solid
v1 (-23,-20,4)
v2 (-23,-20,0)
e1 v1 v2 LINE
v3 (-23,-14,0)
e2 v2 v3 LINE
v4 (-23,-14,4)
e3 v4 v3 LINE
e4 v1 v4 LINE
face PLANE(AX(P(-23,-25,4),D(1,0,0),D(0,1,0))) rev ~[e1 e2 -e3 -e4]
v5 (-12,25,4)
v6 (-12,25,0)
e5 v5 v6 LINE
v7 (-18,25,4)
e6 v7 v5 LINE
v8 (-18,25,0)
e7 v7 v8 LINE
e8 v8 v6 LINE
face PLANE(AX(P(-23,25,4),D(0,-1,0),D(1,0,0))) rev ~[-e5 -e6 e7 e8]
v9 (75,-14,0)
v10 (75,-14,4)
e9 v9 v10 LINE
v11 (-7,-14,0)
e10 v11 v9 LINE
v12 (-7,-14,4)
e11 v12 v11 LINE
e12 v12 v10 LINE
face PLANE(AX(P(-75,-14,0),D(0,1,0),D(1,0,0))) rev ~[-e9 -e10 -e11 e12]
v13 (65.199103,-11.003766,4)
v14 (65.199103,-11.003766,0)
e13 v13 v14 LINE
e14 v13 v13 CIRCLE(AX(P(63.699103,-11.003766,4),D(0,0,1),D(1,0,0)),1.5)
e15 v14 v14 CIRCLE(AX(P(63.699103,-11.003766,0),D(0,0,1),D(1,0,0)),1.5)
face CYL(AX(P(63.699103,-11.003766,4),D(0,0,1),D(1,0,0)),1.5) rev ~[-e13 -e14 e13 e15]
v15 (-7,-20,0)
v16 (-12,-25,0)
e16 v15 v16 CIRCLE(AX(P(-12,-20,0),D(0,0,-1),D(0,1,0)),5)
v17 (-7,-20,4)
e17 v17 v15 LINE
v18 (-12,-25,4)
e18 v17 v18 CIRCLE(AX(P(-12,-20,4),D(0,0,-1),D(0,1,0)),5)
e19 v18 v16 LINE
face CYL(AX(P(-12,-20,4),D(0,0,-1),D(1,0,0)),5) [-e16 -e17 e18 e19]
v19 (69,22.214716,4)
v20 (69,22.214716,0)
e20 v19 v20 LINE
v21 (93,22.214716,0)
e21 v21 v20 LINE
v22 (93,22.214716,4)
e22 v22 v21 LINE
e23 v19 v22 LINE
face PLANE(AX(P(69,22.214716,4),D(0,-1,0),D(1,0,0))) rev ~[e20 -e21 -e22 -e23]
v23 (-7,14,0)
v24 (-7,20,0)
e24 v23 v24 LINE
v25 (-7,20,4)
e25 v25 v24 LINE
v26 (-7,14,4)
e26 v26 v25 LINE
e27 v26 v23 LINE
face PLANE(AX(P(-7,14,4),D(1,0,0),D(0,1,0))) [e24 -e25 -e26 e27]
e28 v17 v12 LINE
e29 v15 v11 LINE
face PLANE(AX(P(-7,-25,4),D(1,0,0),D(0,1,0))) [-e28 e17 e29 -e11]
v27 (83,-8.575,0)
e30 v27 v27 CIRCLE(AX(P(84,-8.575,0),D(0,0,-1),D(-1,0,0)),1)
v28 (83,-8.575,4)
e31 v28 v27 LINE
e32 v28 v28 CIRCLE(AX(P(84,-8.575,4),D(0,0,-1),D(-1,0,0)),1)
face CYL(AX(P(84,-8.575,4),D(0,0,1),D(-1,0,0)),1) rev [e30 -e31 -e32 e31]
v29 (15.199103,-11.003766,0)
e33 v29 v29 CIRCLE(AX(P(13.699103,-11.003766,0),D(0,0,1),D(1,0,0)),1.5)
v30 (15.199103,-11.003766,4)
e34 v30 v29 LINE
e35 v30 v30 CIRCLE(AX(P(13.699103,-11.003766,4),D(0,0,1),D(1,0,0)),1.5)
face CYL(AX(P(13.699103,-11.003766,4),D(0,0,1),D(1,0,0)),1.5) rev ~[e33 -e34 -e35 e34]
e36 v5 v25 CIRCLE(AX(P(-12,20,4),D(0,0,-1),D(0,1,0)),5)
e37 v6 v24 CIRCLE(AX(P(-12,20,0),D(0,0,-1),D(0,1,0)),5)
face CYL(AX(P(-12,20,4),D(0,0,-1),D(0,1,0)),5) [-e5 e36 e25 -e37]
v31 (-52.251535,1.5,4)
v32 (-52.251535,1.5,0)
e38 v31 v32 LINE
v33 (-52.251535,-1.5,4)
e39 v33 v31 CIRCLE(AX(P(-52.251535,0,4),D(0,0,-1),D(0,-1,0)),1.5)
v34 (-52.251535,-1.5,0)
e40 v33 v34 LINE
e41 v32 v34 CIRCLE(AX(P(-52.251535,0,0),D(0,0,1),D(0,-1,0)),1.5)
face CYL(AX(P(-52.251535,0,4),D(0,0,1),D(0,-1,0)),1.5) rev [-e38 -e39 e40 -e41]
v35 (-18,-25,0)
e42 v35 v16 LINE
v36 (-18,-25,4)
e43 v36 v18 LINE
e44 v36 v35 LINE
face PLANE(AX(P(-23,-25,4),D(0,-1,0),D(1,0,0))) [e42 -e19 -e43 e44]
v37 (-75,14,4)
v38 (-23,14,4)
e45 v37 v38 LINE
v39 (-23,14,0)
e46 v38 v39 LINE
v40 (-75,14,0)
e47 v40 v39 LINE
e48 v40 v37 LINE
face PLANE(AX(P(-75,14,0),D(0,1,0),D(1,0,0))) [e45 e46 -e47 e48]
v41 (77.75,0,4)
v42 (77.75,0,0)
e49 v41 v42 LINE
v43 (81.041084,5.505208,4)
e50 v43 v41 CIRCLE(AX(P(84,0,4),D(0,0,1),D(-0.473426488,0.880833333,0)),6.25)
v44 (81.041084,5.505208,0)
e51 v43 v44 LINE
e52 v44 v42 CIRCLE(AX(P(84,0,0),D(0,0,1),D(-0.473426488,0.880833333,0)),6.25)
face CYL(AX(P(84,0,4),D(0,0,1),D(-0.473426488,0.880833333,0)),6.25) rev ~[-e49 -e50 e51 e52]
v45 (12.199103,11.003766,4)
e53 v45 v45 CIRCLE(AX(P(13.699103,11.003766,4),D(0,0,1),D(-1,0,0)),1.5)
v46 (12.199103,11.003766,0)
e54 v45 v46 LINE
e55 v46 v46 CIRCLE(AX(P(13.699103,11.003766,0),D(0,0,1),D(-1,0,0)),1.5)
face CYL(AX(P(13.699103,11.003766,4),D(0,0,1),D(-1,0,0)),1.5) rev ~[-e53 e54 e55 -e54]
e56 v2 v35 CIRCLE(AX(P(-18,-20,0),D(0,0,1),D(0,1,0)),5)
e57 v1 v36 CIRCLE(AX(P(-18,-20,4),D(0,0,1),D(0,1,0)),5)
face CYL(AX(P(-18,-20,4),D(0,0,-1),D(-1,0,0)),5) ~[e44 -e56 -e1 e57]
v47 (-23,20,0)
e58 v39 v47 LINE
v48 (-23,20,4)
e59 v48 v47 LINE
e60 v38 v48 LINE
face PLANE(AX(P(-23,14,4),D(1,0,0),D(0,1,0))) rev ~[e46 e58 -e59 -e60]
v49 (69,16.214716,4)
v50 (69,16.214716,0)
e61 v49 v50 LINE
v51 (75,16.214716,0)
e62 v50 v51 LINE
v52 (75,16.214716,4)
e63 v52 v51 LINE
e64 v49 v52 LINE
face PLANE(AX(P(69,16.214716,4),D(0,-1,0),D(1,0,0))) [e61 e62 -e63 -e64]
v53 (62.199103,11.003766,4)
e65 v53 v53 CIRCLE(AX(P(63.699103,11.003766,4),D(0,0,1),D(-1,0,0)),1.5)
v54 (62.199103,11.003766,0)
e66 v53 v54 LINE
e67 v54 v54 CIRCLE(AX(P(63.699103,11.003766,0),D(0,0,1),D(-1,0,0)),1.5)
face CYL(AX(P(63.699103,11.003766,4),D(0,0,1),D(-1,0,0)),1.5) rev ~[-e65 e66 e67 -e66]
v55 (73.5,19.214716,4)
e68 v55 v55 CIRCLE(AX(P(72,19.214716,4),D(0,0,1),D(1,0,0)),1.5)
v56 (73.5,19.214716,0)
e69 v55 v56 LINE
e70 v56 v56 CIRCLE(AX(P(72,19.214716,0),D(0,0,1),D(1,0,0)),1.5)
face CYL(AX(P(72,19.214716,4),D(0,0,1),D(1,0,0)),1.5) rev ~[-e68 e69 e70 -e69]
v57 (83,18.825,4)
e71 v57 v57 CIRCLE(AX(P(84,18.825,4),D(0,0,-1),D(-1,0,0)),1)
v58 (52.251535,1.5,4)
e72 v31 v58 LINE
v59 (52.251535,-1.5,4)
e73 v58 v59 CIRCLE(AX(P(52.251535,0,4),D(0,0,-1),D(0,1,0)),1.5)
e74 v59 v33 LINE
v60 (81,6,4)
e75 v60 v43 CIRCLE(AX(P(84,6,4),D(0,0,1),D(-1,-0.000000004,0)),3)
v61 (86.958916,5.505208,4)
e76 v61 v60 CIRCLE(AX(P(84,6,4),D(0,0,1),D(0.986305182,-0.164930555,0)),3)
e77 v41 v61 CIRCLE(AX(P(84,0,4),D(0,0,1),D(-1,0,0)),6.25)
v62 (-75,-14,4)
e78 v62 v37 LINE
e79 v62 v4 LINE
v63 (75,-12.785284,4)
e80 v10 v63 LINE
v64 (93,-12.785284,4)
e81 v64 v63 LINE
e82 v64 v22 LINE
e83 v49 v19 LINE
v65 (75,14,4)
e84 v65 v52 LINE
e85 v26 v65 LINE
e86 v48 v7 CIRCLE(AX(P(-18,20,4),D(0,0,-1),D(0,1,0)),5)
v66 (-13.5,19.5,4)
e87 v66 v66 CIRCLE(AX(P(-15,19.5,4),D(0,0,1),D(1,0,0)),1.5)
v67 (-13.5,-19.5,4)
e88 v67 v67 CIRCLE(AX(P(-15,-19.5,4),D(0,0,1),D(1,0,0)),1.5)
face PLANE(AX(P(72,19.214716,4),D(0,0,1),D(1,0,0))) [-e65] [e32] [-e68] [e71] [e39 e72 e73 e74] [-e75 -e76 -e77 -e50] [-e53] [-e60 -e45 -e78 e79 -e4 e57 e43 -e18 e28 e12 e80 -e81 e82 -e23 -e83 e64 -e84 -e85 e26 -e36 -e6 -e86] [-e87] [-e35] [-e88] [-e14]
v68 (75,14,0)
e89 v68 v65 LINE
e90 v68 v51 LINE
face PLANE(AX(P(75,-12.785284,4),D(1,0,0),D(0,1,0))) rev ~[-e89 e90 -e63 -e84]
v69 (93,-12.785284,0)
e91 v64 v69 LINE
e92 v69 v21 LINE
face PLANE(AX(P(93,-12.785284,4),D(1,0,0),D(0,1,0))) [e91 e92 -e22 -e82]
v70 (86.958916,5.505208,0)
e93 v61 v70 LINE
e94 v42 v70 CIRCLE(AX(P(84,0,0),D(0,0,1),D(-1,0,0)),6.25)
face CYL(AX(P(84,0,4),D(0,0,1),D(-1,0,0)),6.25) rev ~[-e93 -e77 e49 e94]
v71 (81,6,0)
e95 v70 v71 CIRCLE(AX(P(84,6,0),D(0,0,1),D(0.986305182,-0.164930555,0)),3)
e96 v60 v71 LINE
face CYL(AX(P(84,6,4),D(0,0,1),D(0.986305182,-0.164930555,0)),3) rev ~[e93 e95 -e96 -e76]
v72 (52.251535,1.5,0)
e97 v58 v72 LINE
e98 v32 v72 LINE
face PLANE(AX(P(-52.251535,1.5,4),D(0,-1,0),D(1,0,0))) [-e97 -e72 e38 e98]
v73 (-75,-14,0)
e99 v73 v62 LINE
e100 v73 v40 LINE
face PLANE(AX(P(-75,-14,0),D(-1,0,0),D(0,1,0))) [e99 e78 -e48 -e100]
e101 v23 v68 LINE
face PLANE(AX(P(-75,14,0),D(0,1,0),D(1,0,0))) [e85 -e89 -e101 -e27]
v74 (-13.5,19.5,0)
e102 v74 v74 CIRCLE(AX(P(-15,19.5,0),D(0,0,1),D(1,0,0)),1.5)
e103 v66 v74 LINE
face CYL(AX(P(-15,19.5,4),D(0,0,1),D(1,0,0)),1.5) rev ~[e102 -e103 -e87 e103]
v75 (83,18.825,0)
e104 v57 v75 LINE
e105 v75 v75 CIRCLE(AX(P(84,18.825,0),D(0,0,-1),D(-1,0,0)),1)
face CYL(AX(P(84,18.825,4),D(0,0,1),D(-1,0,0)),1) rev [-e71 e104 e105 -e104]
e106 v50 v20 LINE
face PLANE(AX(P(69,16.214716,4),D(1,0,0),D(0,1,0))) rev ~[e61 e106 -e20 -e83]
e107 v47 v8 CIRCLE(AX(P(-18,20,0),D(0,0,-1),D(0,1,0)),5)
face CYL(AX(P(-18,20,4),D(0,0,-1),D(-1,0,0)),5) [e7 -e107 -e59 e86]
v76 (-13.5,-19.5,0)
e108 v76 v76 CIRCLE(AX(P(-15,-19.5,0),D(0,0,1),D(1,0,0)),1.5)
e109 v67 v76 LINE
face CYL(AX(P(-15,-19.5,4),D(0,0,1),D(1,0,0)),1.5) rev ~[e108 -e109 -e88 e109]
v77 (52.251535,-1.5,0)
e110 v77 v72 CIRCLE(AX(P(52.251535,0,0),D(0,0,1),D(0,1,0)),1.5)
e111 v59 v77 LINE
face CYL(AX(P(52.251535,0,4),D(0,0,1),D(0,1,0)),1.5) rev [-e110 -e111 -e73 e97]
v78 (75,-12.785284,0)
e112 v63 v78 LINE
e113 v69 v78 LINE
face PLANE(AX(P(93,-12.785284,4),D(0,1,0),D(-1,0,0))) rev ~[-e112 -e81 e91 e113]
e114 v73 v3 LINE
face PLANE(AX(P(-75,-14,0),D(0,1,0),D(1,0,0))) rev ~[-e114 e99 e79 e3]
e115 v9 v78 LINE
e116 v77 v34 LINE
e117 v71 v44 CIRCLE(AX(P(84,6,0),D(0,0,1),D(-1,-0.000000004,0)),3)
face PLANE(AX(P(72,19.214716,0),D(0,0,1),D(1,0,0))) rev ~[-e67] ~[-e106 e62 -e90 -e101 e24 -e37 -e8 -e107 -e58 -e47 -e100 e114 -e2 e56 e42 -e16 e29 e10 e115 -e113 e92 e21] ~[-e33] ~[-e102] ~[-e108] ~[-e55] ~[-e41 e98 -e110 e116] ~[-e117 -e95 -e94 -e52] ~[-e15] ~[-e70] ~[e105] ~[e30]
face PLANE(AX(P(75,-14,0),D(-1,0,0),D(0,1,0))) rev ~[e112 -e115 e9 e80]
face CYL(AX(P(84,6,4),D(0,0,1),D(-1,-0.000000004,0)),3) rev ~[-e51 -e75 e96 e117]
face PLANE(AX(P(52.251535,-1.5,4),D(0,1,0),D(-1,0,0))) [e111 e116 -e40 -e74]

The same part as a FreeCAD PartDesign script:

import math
import FreeCAD as App
import Part
import Sketcher

V = App.Vector
Q = App.Units.Quantity


def edges_at(feature, points):
    """Names of the edges that pass closest to the given points."""
    edges = feature.Shape.Edges
    near = lambda p: min(range(len(edges)), key=lambda i: edges[i].distToShape(Part.Vertex(*p))[0])
    return sorted({f"Edge{near(p) + 1}" for p in points})

doc = App.newDocument("Part")
body = doc.addObject("PartDesign::Body", "Body")

# Sketch on XY plane
sketch1 = body.newObject("Sketcher::SketchObject", "Sketch")
sketch1.AttachmentSupport = (doc.getObject("XY_Plane"), [""])
sketch1.MapMode = "FlatFace"
sketch1.addGeometry([
    Part.LineSegment(V(-75, 14, 0), V(-75, -14, 0)),
    Part.LineSegment(V(-75, -14, 0), V(75, -14, 0)),
    Part.LineSegment(V(75, -14, 0), V(75, 14, 0)),
    Part.LineSegment(V(75, 14, 0), V(-75, 14, 0)),
], False)
sketch1.addConstraint([
    Sketcher.Constraint("Coincident", 0, 2, 1, 1),
    Sketcher.Constraint("Coincident", 1, 2, 2, 1),
    Sketcher.Constraint("Coincident", 2, 2, 3, 1),
    Sketcher.Constraint("Coincident", 3, 2, 0, 1),
    Sketcher.Constraint("Vertical", 0),
    Sketcher.Constraint("Horizontal", 1),
    Sketcher.Constraint("Vertical", 2),
    Sketcher.Constraint("Horizontal", 3),
    Sketcher.Constraint("Symmetric", 0, 2, 2, 2, -1, 1),
    Sketcher.Constraint("DistanceX", 1, 1, 1, 2, Q("150 mm")),
    Sketcher.Constraint("DistanceY", 0, 2, 0, 1, Q("28 mm")),
])
pad1 = body.newObject("PartDesign::Pad", "Pad")
pad1.Profile = sketch1
pad1.Length = 4

# Sketch on XY plane
sketch2 = body.newObject("Sketcher::SketchObject", "Sketch001")
sketch2.AttachmentSupport = (doc.getObject("XY_Plane"), [""])
sketch2.MapMode = "FlatFace"
sketch2.AttachmentOffset = App.Placement(V(0, 0, 4), App.Rotation())
sketch2.addGeometry([
    Part.LineSegment(V(52.3, 1.5, 0), V(-52.3, 1.5, 0)),
    Part.ArcOfCircle(Part.Circle(V(-52.3, 0, 0), V(0, 0, 1), 1.5), math.radians(90), math.radians(270)),
    Part.LineSegment(V(-52.3, -1.5, 0), V(52.3, -1.5, 0)),
    Part.ArcOfCircle(Part.Circle(V(52.3, 0, 0), V(0, 0, 1), 1.5), math.radians(-90), math.radians(90)),
], False)
sketch2.addConstraint([
    Sketcher.Constraint("Tangent", 0, 2, 1, 1),
    Sketcher.Constraint("Tangent", 1, 2, 2, 1),
    Sketcher.Constraint("Tangent", 2, 2, 3, 1),
    Sketcher.Constraint("Tangent", 3, 2, 0, 1),
    Sketcher.Constraint("Horizontal", 0),
    Sketcher.Constraint("Horizontal", 2),
    Sketcher.Constraint("Symmetric", 1, 3, 3, 3, -1, 1),
    Sketcher.Constraint("Radius", 1, Q("1.5 mm")),
    Sketcher.Constraint("DistanceX", 0, 2, 0, 1, Q("104.503069 mm")),
])
pocket1 = body.newObject("PartDesign::Pocket", "Pocket")
pocket1.Profile = sketch2
pocket1.Type = "ThroughAll"

# Sketch on XY plane
sketch3 = body.newObject("Sketcher::SketchObject", "Sketch002")
sketch3.AttachmentSupport = (doc.getObject("XY_Plane"), [""])
sketch3.MapMode = "FlatFace"
sketch3.AttachmentOffset = App.Placement(V(0, 0, 4), App.Rotation())
sketch3.addGeometry([
    Part.Circle(V(13.7, -11, 0), V(0, 0, 1), 1.5),
    Part.Circle(V(63.7, -11, 0), V(0, 0, 1), 1.5),
    Part.Circle(V(63.7, 11, 0), V(0, 0, 1), 1.5),
    Part.Circle(V(13.7, 11, 0), V(0, 0, 1), 1.5),
], False)
sketch3.addConstraint([
    Sketcher.Constraint("Equal", 0, 1),
    Sketcher.Constraint("Equal", 1, 2),
    Sketcher.Constraint("Equal", 2, 3),
    Sketcher.Constraint("Symmetric", 1, 3, 2, 3, -1),
    Sketcher.Constraint("Symmetric", 0, 3, 3, 3, -1),
    Sketcher.Constraint("Horizontal", 0, 3, 1, 3),
    Sketcher.Constraint("Diameter", 0, Q("3 mm")),
    Sketcher.Constraint("DistanceX", 0, 3, 1, 3, Q("50 mm")),
    Sketcher.Constraint("DistanceY", 1, 3, 2, 3, Q("22.007531 mm")),
    Sketcher.Constraint("DistanceX", -1, 1, 0, 3, Q("13.699103 mm")),
])
pocket2 = body.newObject("PartDesign::Pocket", "Pocket001")
pocket2.Profile = sketch3
pocket2.Type = "ThroughAll"

# Sketch on XY plane
sketch4 = body.newObject("Sketcher::SketchObject", "Sketch003")
sketch4.AttachmentSupport = (doc.getObject("XY_Plane"), [""])
sketch4.MapMode = "FlatFace"
sketch4.AttachmentOffset = App.Placement(V(0, 0, 4), App.Rotation())
sketch4.addGeometry([
    Part.LineSegment(V(93, 22.21, 0), V(93, -12.79, 0)),  # 0
    Part.LineSegment(V(93, -12.79, 0), V(75, -12.79, 0)),  # 1
    Part.LineSegment(V(75, -12.79, 0), V(75, 22.21, 0)),  # 2
    Part.LineSegment(V(75, 22.21, 0), V(93, 22.21, 0)),  # 3
    Part.Circle(V(84, -8.57, 0), V(0, 0, 1), 1),  # 4
    Part.ArcOfCircle(Part.Circle(V(84, 6, 0), V(0, 0, 1), 3), math.radians(-180), math.radians(-170.51)),  # 5
    Part.ArcOfCircle(Part.Circle(V(84, 0, 0), V(0, 0, 1), 6.25), math.radians(118), math.radians(180)),  # 6
    Part.ArcOfCircle(Part.Circle(V(84, 0, 0), V(0, 0, 1), 6.25), math.radians(180), math.radians(422)),  # 7
    Part.ArcOfCircle(Part.Circle(V(84, 6, 0), V(0, 0, 1), 3), math.radians(-9), math.radians(180)),  # 8
    Part.Circle(V(84, 18.82, 0), V(0, 0, 1), 1),  # 9
], False)
sketch4.addConstraint([
    Sketcher.Constraint("Coincident", 0, 2, 1, 1),
    Sketcher.Constraint("Coincident", 1, 2, 2, 1),
    Sketcher.Constraint("Coincident", 2, 2, 3, 1),
    Sketcher.Constraint("Coincident", 3, 2, 0, 1),
    Sketcher.Constraint("Coincident", 5, 2, 6, 1),
    Sketcher.Constraint("Tangent", 6, 2, 7, 1),
    Sketcher.Constraint("Coincident", 7, 2, 8, 1),
    Sketcher.Constraint("Tangent", 8, 2, 5, 1),
    Sketcher.Constraint("Vertical", 0),
    Sketcher.Constraint("Horizontal", 1),
    Sketcher.Constraint("Vertical", 2),
    Sketcher.Constraint("Horizontal", 3),
    Sketcher.Constraint("Equal", 6, 7),
    Sketcher.Constraint("Equal", 5, 8),
    Sketcher.Constraint("Equal", 4, 9),
    Sketcher.Constraint("PointOnObject", 6, 3, -1),
    Sketcher.Constraint("PointOnObject", 6, 2, -1),
    Sketcher.Constraint("Horizontal", 5, 2, 7, 2),
    Sketcher.Constraint("Horizontal", 5, 3, 8, 2),
    Sketcher.Constraint("Vertical", 4, 3, 5, 3),
    Sketcher.Constraint("Vertical", 8, 3, 9, 3),
    Sketcher.Constraint("Diameter", 4, Q("2 mm")),
    Sketcher.Constraint("Radius", 5, Q("3 mm")),
    Sketcher.Constraint("DistanceX", 1, 2, 1, 1, Q("18 mm")),
    Sketcher.Constraint("DistanceY", 0, 2, 0, 1, Q("35 mm")),
    Sketcher.Constraint("Radius", 6, Q("6.25 mm")),
    Sketcher.Constraint("DistanceX", -1, 1, 4, 3, Q("84 mm")),
    Sketcher.Constraint("DistanceY", -1, 1, 5, 3, Q("6 mm")),
    Sketcher.Constraint("DistanceX", -1, 1, 0, 2, Q("93 mm")),
    Sketcher.Constraint("DistanceY", 4, 3, 9, 3, Q("27.4 mm")),
    Sketcher.Constraint("DistanceY", 4, 3, -1, 1, Q("8.575 mm")),
    Sketcher.Constraint("DistanceY", 0, 2, -1, 1, Q("12.785284 mm")),
])
pad2 = body.newObject("PartDesign::Pad", "Pad001")
pad2.Profile = sketch4
pad2.Length = 4
pad2.Reversed = True

# Sketch on XY plane
sketch5 = body.newObject("Sketcher::SketchObject", "Sketch004")
sketch5.AttachmentSupport = (doc.getObject("XY_Plane"), [""])
sketch5.MapMode = "FlatFace"
sketch5.AttachmentOffset = App.Placement(V(0, 0, 4), App.Rotation())
sketch5.addGeometry([
    Part.LineSegment(V(69, 22.2, 0), V(69, 16.2, 0)),  # 0
    Part.LineSegment(V(69, 16.2, 0), V(75, 16.2, 0)),  # 1
    Part.LineSegment(V(75, 16.2, 0), V(75, 22.2, 0)),  # 2
    Part.LineSegment(V(75, 22.2, 0), V(69, 22.2, 0)),  # 3
    Part.Circle(V(72, 19.2, 0), V(0, 0, 1), 1.5),  # 4
], False)
sketch5.addConstraint([
    Sketcher.Constraint("Coincident", 0, 2, 1, 1),
    Sketcher.Constraint("Coincident", 1, 2, 2, 1),
    Sketcher.Constraint("Coincident", 2, 2, 3, 1),
    Sketcher.Constraint("Coincident", 3, 2, 0, 1),
    Sketcher.Constraint("Vertical", 0),
    Sketcher.Constraint("Horizontal", 1),
    Sketcher.Constraint("Vertical", 2),
    Sketcher.Constraint("Horizontal", 3),
    Sketcher.Constraint("Equal", 3, 0),
    Sketcher.Constraint("Diameter", 4, Q("3 mm")),
    Sketcher.Constraint("DistanceX", 1, 1, 1, 2, Q("6 mm")),
    Sketcher.Constraint("DistanceX", -1, 1, 4, 3, Q("72 mm")),
    Sketcher.Constraint("DistanceX", -1, 1, 0, 2, Q("69 mm")),
    Sketcher.Constraint("DistanceY", 0, 2, 4, 3, Q("3 mm")),
    Sketcher.Constraint("DistanceY", -1, 1, 4, 3, Q("19.214716 mm")),
])
pad3 = body.newObject("PartDesign::Pad", "Pad002")
pad3.Profile = sketch5
pad3.Length = 4
pad3.Reversed = True

# Sketch on XY plane
sketch6 = body.newObject("Sketcher::SketchObject", "Sketch005")
sketch6.AttachmentSupport = (doc.getObject("XY_Plane"), [""])
sketch6.MapMode = "FlatFace"
sketch6.AttachmentOffset = App.Placement(V(0, 0, 4), App.Rotation())
sketch6.addGeometry([
    Part.LineSegment(V(-23, 4, 0), V(-7, 4, 0)),  # 0
    Part.LineSegment(V(-7, 4, 0), V(-7, 25, 0)),  # 1
    Part.LineSegment(V(-7, 25, 0), V(-23, 25, 0)),  # 2
    Part.LineSegment(V(-23, 25, 0), V(-23, 4, 0)),  # 3
    Part.Circle(V(-15, 19.5, 0), V(0, 0, 1), 1.5),  # 4
    Part.LineSegment(V(-23, -4, 0), V(-23, -25, 0)),  # 5
    Part.LineSegment(V(-23, -25, 0), V(-7, -25, 0)),  # 6
    Part.LineSegment(V(-7, -25, 0), V(-7, -4, 0)),  # 7
    Part.LineSegment(V(-7, -4, 0), V(-23, -4, 0)),  # 8
    Part.Circle(V(-15, -19.5, 0), V(0, 0, 1), 1.5),  # 9
], False)
sketch6.addConstraint([
    Sketcher.Constraint("Coincident", 0, 2, 1, 1),
    Sketcher.Constraint("Coincident", 1, 2, 2, 1),
    Sketcher.Constraint("Coincident", 2, 2, 3, 1),
    Sketcher.Constraint("Coincident", 3, 2, 0, 1),
    Sketcher.Constraint("Coincident", 5, 2, 6, 1),
    Sketcher.Constraint("Coincident", 6, 2, 7, 1),
    Sketcher.Constraint("Coincident", 7, 2, 8, 1),
    Sketcher.Constraint("Coincident", 8, 2, 5, 1),
    Sketcher.Constraint("Horizontal", 0),
    Sketcher.Constraint("Vertical", 1),
    Sketcher.Constraint("Horizontal", 2),
    Sketcher.Constraint("Vertical", 3),
    Sketcher.Constraint("Vertical", 5),
    Sketcher.Constraint("Horizontal", 6),
    Sketcher.Constraint("Vertical", 7),
    Sketcher.Constraint("Horizontal", 8),
    Sketcher.Constraint("Equal", 4, 9),
    Sketcher.Constraint("Symmetric", 4, 3, 9, 3, -1),
    Sketcher.Constraint("Symmetric", 2, 2, 5, 2, -1),
    Sketcher.Constraint("Symmetric", 0, 2, 7, 2, -1),
    Sketcher.Constraint("Diameter", 4, Q("3 mm")),
    Sketcher.Constraint("DistanceX", 0, 1, 0, 2, Q("16 mm")),
    Sketcher.Constraint("DistanceY", 1, 1, 1, 2, Q("21 mm")),
    Sketcher.Constraint("DistanceX", 4, 3, -1, 1, Q("15 mm")),
    Sketcher.Constraint("DistanceX", 0, 2, -1, 1, Q("7 mm")),
    Sketcher.Constraint("DistanceY", -1, 1, 0, 2, Q("4 mm")),
    Sketcher.Constraint("DistanceY", 9, 3, 4, 3, Q("39 mm")),
])
pad4 = body.newObject("PartDesign::Pad", "Pad003")
pad4.Profile = sketch6
pad4.Length = 4
pad4.Reversed = True
doc.recompute()

fillet = body.newObject("PartDesign::Fillet", "Fillet")
fillet.Base = (pad4, edges_at(pad4, [
    (-23, -25, 2),
    (-7, -25, 2),
    (-7, 25, 2),
    (-23, 25, 2),
]))
fillet.Radius = 5

doc.recompute()
